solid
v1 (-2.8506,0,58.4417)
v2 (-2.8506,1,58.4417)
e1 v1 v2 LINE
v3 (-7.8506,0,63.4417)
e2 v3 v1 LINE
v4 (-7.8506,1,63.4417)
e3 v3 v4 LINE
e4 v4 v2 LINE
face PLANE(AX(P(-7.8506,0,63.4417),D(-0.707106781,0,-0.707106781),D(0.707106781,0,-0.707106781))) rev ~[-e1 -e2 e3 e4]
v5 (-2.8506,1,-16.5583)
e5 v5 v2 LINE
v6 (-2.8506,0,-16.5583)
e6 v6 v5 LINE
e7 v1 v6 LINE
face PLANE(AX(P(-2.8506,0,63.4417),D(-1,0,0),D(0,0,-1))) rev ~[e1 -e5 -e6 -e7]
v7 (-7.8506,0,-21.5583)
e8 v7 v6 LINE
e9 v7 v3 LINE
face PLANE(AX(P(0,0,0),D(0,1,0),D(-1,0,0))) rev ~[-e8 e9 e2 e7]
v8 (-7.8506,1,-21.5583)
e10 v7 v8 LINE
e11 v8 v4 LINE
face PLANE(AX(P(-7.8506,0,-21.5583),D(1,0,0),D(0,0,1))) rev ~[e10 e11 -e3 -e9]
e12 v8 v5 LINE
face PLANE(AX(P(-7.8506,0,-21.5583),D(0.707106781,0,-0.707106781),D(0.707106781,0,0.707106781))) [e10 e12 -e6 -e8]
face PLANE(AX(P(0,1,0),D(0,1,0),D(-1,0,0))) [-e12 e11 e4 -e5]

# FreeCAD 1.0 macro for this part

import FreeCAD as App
import Part
import Sketcher
from FreeCAD import Vector

doc = App.newDocument("Part")
body = doc.addObject("PartDesign::Body", "Body")

# Sketch on XZ plane
sketch1 = body.newObject("Sketcher::SketchObject", "Sketch")
sketch1.AttachmentSupport = (doc.getObject("XZ_Plane"), [""])
sketch1.MapMode = "FlatFace"
sketch1.addGeometry(Part.LineSegment(Vector(-3, 63, 0), Vector(-3, -22, 0)), False)
sketch1.addGeometry(Part.LineSegment(Vector(-3, -22, 0), Vector(-8, -22, 0)), False)
sketch1.addGeometry(Part.LineSegment(Vector(-8, -22, 0), Vector(-8, 63, 0)), False)
sketch1.addGeometry(Part.LineSegment(Vector(-8, 63, 0), Vector(-3, 63, 0)), False)
sketch1.addConstraint(Sketcher.Constraint("Coincident", 0, 2, 1, 1))
sketch1.addConstraint(Sketcher.Constraint("Coincident", 1, 2, 2, 1))
sketch1.addConstraint(Sketcher.Constraint("Coincident", 2, 2, 3, 1))
sketch1.addConstraint(Sketcher.Constraint("Coincident", 3, 2, 0, 1))
sketch1.addConstraint(Sketcher.Constraint("Vertical", 0))
sketch1.addConstraint(Sketcher.Constraint("Horizontal", 1))
sketch1.addConstraint(Sketcher.Constraint("Vertical", 2))
sketch1.addConstraint(Sketcher.Constraint("Horizontal", 3))
sketch1.addConstraint(Sketcher.Constraint("DistanceX", 1, 2, 1, 1, 5.0))
sketch1.addConstraint(Sketcher.Constraint("DistanceY", 0, 2, 0, 1, 85.0))
sketch1.addConstraint(Sketcher.Constraint("DistanceX", 0, 2, -1, 1, 2.8506))
sketch1.addConstraint(Sketcher.Constraint("DistanceY", 0, 2, -1, 1, 21.5583))
pad1 = body.newObject("PartDesign::Pad", "Pad")
pad1.Profile = sketch1
pad1.Length = 1
pad1.Reversed = True

# Sketch on XZ plane
sketch2 = body.newObject("Sketcher::SketchObject", "Sketch001")
sketch2.AttachmentSupport = (doc.getObject("XZ_Plane"), [""])
sketch2.MapMode = "FlatFace"
sketch2.addGeometry(Part.LineSegment(Vector(-3, 58, 0), Vector(-8, 63, 0)), False)
sketch2.addGeometry(Part.LineSegment(Vector(-8, 63, 0), Vector(-3, 63, 0)), False)
sketch2.addGeometry(Part.LineSegment(Vector(-3, 63, 0), Vector(-3, 58, 0)), False)
sketch2.addGeometry(Part.LineSegment(Vector(-3, -22, 0), Vector(-8, -22, 0)), False)
sketch2.addGeometry(Part.LineSegment(Vector(-8, -22, 0), Vector(-3, -17, 0)), False)
sketch2.addGeometry(Part.LineSegment(Vector(-3, -17, 0), Vector(-3, -22, 0)), False)
sketch2.addConstraint(Sketcher.Constraint("Coincident", 0, 2, 1, 1))
sketch2.addConstraint(Sketcher.Constraint("Coincident", 1, 2, 2, 1))
sketch2.addConstraint(Sketcher.Constraint("Coincident", 2, 2, 0, 1))
sketch2.addConstraint(Sketcher.Constraint("Coincident", 3, 2, 4, 1))
sketch2.addConstraint(Sketcher.Constraint("Coincident", 4, 2, 5, 1))
sketch2.addConstraint(Sketcher.Constraint("Coincident", 5, 2, 3, 1))
sketch2.addConstraint(Sketcher.Constraint("Horizontal", 1))
sketch2.addConstraint(Sketcher.Constraint("Vertical", 2))
sketch2.addConstraint(Sketcher.Constraint("Horizontal", 3))
sketch2.addConstraint(Sketcher.Constraint("Vertical", 5))
sketch2.addConstraint(Sketcher.Constraint("Perpendicular", 0, 4))
sketch2.addConstraint(Sketcher.Constraint("Vertical", 0, 2, 3, 2))
sketch2.addConstraint(Sketcher.Constraint("Vertical", 2, 2, 4, 2))
sketch2.addConstraint(Sketcher.Constraint("Equal", 3, 2))
sketch2.addConstraint(Sketcher.Constraint("DistanceX", 1, 1, 1, 2, 5.0))
sketch2.addConstraint(Sketcher.Constraint("DistanceY", 4, 2, 2, 2, 75.0))
sketch2.addConstraint(Sketcher.Constraint("DistanceX", 0, 2, -1, 1, 7.8506))
sketch2.addConstraint(Sketcher.Constraint("DistanceY", -1, 1, 0, 2, 63.4417))
pocket1 = body.newObject("PartDesign::Pocket", "Pocket")
pocket1.Profile = sketch2
pocket1.Length = 1

doc.recompute()
